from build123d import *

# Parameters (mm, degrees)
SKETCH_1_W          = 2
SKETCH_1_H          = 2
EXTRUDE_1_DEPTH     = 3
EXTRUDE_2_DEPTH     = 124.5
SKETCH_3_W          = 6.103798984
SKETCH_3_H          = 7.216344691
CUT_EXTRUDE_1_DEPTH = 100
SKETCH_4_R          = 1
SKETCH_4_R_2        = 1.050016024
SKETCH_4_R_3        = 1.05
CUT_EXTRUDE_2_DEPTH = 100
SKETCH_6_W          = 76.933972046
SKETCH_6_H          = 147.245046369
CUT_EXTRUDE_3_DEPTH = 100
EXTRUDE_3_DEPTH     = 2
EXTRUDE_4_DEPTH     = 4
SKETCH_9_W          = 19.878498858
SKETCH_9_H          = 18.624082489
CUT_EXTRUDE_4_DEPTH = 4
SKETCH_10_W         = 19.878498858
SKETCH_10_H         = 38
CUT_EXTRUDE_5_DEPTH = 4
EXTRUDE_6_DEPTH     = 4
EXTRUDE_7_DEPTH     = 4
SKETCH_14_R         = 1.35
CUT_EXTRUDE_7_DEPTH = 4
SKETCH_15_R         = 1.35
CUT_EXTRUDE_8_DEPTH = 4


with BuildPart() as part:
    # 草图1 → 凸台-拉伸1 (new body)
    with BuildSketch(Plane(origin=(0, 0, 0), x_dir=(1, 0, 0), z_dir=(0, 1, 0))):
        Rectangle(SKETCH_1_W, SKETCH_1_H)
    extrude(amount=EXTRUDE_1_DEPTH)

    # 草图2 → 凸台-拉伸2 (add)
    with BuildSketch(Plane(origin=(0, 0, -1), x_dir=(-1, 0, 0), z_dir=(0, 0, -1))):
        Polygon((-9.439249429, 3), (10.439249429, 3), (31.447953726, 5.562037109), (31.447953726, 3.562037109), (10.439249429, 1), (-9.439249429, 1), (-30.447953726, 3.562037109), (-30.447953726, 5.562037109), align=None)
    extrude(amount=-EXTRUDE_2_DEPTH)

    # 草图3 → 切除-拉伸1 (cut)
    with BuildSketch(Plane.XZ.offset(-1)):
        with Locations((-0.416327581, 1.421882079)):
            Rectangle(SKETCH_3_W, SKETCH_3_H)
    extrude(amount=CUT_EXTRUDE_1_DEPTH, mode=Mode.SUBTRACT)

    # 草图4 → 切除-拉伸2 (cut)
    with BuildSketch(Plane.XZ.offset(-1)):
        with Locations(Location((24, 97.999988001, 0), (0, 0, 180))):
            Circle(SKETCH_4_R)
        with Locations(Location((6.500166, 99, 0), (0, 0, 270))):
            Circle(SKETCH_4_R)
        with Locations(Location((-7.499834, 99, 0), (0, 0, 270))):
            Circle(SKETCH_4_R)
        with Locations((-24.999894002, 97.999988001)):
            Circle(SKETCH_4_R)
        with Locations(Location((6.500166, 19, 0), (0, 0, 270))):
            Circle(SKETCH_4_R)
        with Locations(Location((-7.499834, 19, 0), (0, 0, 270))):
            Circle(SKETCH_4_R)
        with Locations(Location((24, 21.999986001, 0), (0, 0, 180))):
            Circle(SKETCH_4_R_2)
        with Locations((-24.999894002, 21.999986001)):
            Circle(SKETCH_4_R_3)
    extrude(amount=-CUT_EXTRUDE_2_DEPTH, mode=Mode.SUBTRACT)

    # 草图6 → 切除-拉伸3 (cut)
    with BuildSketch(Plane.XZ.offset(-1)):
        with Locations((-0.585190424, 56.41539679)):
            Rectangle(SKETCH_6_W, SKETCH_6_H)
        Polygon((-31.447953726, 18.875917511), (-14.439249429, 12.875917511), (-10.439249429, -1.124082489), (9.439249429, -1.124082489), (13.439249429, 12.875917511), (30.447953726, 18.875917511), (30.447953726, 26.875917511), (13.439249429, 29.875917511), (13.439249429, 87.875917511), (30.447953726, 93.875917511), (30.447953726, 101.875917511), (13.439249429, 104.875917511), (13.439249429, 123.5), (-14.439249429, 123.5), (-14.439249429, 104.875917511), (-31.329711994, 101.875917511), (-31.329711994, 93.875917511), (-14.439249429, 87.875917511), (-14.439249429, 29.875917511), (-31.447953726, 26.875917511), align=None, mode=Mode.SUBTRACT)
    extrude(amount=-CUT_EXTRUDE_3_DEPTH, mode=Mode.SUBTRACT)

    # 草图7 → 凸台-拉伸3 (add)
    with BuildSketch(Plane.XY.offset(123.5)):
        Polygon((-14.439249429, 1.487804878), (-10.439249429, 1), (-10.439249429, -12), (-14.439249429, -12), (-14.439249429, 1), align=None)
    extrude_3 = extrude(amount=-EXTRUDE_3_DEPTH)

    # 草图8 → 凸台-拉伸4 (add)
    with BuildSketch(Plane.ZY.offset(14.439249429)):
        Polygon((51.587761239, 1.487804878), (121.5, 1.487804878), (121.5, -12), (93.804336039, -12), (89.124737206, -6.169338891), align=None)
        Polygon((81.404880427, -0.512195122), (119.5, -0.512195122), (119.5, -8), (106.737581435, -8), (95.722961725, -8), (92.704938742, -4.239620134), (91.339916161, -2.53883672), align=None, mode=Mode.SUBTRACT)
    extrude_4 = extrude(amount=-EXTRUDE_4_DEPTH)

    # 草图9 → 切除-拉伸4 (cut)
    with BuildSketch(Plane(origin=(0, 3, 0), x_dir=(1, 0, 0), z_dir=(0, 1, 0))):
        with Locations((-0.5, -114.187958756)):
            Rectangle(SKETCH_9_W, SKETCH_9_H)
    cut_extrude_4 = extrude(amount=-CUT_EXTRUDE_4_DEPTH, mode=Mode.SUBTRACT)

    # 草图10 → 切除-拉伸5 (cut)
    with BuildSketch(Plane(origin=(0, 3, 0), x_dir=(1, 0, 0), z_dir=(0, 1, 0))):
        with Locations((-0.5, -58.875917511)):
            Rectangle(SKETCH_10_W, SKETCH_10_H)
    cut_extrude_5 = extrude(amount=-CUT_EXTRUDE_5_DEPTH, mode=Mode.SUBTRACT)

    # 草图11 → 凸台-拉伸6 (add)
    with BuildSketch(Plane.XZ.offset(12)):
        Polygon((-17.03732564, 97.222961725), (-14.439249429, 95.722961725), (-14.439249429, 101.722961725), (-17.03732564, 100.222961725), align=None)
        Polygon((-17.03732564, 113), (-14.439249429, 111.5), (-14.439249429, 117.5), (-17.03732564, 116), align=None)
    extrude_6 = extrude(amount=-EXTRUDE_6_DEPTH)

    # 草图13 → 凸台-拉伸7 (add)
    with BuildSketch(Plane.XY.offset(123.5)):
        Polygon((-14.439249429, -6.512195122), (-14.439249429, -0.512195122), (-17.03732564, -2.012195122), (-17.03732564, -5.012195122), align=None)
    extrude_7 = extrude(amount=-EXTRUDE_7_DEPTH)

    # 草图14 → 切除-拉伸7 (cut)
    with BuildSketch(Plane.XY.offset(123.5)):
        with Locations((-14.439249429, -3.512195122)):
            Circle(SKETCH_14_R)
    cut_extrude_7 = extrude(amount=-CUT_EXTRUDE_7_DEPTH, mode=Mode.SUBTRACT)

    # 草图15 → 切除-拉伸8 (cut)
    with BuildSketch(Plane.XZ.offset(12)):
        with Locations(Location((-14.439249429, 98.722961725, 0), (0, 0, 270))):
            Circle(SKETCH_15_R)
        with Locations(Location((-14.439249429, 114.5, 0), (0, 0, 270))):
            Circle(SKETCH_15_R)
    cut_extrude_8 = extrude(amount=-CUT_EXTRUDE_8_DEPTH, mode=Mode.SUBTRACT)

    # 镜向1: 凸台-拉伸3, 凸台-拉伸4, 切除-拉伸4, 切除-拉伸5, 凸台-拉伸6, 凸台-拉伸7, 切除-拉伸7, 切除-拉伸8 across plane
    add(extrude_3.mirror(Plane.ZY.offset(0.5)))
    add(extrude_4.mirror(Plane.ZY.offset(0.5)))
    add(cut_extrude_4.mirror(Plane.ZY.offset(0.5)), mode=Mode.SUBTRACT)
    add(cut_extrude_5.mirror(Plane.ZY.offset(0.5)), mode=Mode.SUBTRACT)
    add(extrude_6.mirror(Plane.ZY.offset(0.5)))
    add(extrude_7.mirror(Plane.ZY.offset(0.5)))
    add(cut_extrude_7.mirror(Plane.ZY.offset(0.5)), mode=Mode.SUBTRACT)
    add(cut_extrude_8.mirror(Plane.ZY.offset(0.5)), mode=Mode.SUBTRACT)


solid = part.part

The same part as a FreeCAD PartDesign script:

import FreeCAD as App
import Part
import Sketcher

V = App.Vector
Q = App.Units.Quantity

doc = App.newDocument("Part")
body = doc.addObject("PartDesign::Body", "Body")

# Sketch on XZ plane
sketch1 = doc.addObject("Sketcher::SketchObject", "Sketch")
body.addObject(sketch1)
sketch1.AttachmentSupport = (doc.XZ_Plane, [""])
sketch1.MapMode = "FlatFace"
sketch1.addGeometry([
    Part.LineSegment(V(-1, -1, 0), V(-1, 1, 0)),
    Part.LineSegment(V(-1, 1, 0), V(1, 1, 0)),
    Part.LineSegment(V(1, 1, 0), V(1, -1, 0)),
    Part.LineSegment(V(1, -1, 0), V(-1, -1, 0)),
], False)
sketch1.addConstraint([
    Sketcher.Constraint("Coincident", 0, 2, 1, 1),
    Sketcher.Constraint("Coincident", 1, 2, 2, 1),
    Sketcher.Constraint("Coincident", 2, 2, 3, 1),
    Sketcher.Constraint("Coincident", 3, 2, 0, 1),
    Sketcher.Constraint("Vertical", 0),
    Sketcher.Constraint("Horizontal", 1),
    Sketcher.Constraint("Vertical", 2),
    Sketcher.Constraint("Horizontal", 3),
    Sketcher.Constraint("Symmetric", 0, 2, 2, 2, -1, 1),
    Sketcher.Constraint("Equal", 3, 0),
    Sketcher.Constraint("DistanceX", 1, 1, 1, 2, 2.0),
])
pad1 = doc.addObject("PartDesign::Pad", "Pad")
body.addObject(pad1)
pad1.Profile = sketch1
pad1.Length = 3
pad1.Reversed = True

# Sketch on XY plane
sketch2 = doc.addObject("Sketcher::SketchObject", "Sketch001")
body.addObject(sketch2)
sketch2.AttachmentSupport = (doc.XY_Plane, [""])
sketch2.MapMode = "FlatFace"
sketch2.AttachmentOffset = App.Placement(V(0, 0, -1), App.Rotation())
sketch2.addGeometry([
    Part.LineSegment(V(-10.4, 3, 0), V(9.4, 3, 0)),  # 0
    Part.LineSegment(V(9.4, 3, 0), V(30.4, 5.6, 0)),  # 1
    Part.LineSegment(V(30.4, 5.6, 0), V(30.4, 3.6, 0)),  # 2
    Part.LineSegment(V(30.4, 3.6, 0), V(9.4, 1, 0)),  # 3
    Part.LineSegment(V(9.4, 1, 0), V(-10.4, 1, 0)),  # 4
    Part.LineSegment(V(-10.4, 1, 0), V(-31.4, 3.6, 0)),  # 5
    Part.LineSegment(V(-31.4, 3.6, 0), V(-31.4, 5.6, 0)),  # 6
    Part.LineSegment(V(-31.4, 5.6, 0), V(-10.4, 3, 0)),  # 7
], False)
sketch2.addConstraint([
    Sketcher.Constraint("Coincident", 0, 2, 1, 1),
    Sketcher.Constraint("Coincident", 1, 2, 2, 1),
    Sketcher.Constraint("Coincident", 2, 2, 3, 1),
    Sketcher.Constraint("Coincident", 3, 2, 4, 1),
    Sketcher.Constraint("Coincident", 4, 2, 5, 1),
    Sketcher.Constraint("Coincident", 5, 2, 6, 1),
    Sketcher.Constraint("Coincident", 6, 2, 7, 1),
    Sketcher.Constraint("Coincident", 7, 2, 0, 1),
    Sketcher.Constraint("Horizontal", 0),
    Sketcher.Constraint("Vertical", 2),
    Sketcher.Constraint("Horizontal", 4),
    Sketcher.Constraint("Vertical", 6),
    Sketcher.Constraint("Parallel", 1, 3),
    Sketcher.Constraint("Parallel", 5, 7),
    Sketcher.Constraint("Horizontal", 2, 2, 5, 2),
    Sketcher.Constraint("Horizontal", 1, 2, 6, 2),
    Sketcher.Constraint("Vertical", 0, 2, 3, 2),
    Sketcher.Constraint("Equal", 3, 5),
    Sketcher.Constraint("DistanceY", 2, 2, 2, 1, 2.0),
    Sketcher.Constraint("DistanceY", -1, 1, 0, 2, 3.0),
    Sketcher.Constraint("DistanceX", 0, 1, 0, 2, 19.878499),
    Sketcher.Constraint("Distance", 1, 21.16435),
    Sketcher.Constraint("DistanceX", -1, 1, 0, 2, 9.439249),
    Sketcher.Constraint("DistanceX", -1, 1, 1, 2, 30.447954),
])
pad2 = doc.addObject("PartDesign::Pad", "Pad001")
body.addObject(pad2)
pad2.Profile = sketch2
pad2.Length = 124.5

# Sketch on XZ plane
sketch3 = doc.addObject("Sketcher::SketchObject", "Sketch002")
body.addObject(sketch3)
sketch3.AttachmentSupport = (doc.XZ_Plane, [""])
sketch3.MapMode = "FlatFace"
sketch3.AttachmentOffset = App.Placement(V(0, 0, -1), App.Rotation())
sketch3.addGeometry([
    Part.LineSegment(V(-3, 5, 0), V(-3, -2, 0)),
    Part.LineSegment(V(-3, -2, 0), V(3, -2, 0)),
    Part.LineSegment(V(3, -2, 0), V(3, 5, 0)),
    Part.LineSegment(V(3, 5, 0), V(-3, 5, 0)),
], False)
sketch3.addConstraint([
    Sketcher.Constraint("Coincident", 0, 2, 1, 1),
    Sketcher.Constraint("Coincident", 1, 2, 2, 1),
    Sketcher.Constraint("Coincident", 2, 2, 3, 1),
    Sketcher.Constraint("Coincident", 3, 2, 0, 1),
    Sketcher.Constraint("Vertical", 0),
    Sketcher.Constraint("Horizontal", 1),
    Sketcher.Constraint("Vertical", 2),
    Sketcher.Constraint("Horizontal", 3),
    Sketcher.Constraint("DistanceX", 1, 1, 1, 2, 6.103799),
    Sketcher.Constraint("DistanceY", 0, 2, 0, 1, 7.216345),
    Sketcher.Constraint("DistanceY", 0, 2, -1, 1, 2.18629),
    Sketcher.Constraint("DistanceX", -1, 1, 1, 2, 2.635572),
])
pocket1 = doc.addObject("PartDesign::Pocket", "Pocket")
body.addObject(pocket1)
pocket1.Profile = sketch3
pocket1.Length = 100
pocket1.Reversed = True

# Sketch on XZ plane
sketch4 = doc.addObject("Sketcher::SketchObject", "Sketch003")
body.addObject(sketch4)
sketch4.AttachmentSupport = (doc.XZ_Plane, [""])
sketch4.MapMode = "FlatFace"
sketch4.AttachmentOffset = App.Placement(V(0, 0, -1), App.Rotation())
sketch4.addGeometry([
    Part.Circle(V(24, 98, 0), V(0, 0, 1), 1),  # 0
    Part.Circle(V(6.5, 99, 0), V(0, 0, 1), 1),  # 1
    Part.Circle(V(-7.5, 99, 0), V(0, 0, 1), 1),  # 2
    Part.Circle(V(-25, 98, 0), V(0, 0, 1), 1),  # 3
    Part.Circle(V(6.5, 19, 0), V(0, 0, 1), 1),  # 4
    Part.Circle(V(-7.5, 19, 0), V(0, 0, 1), 1),  # 5
    Part.Circle(V(24, 22, 0), V(0, 0, 1), 1.1),  # 6
    Part.Circle(V(-25, 22, 0), V(0, 0, 1), 1.1),  # 7
], False)
sketch4.addConstraint([
    Sketcher.Constraint("Equal", 0, 1),
    Sketcher.Constraint("Equal", 1, 2),
    Sketcher.Constraint("Equal", 2, 3),
    Sketcher.Constraint("Equal", 3, 4),
    Sketcher.Constraint("Equal", 4, 5),
    Sketcher.Constraint("Horizontal", 1, 3, 2, 3),
    Sketcher.Constraint("Horizontal", 0, 3, 3, 3),
    Sketcher.Constraint("Horizontal", 4, 3, 5, 3),
    Sketcher.Constraint("Horizontal", 6, 3, 7, 3),
    Sketcher.Constraint("Vertical", 1, 3, 4, 3),
    Sketcher.Constraint("Vertical", 2, 3, 5, 3),
    Sketcher.Constraint("Vertical", 0, 3, 6, 3),
    Sketcher.Constraint("Vertical", 3, 3, 7, 3),
    Sketcher.Constraint("Diameter", 0, 2.0),
    Sketcher.Constraint("Diameter", 7, 2.1),
    Sketcher.Constraint("DistanceX", -1, 1, 0, 3, 24.0),
    Sketcher.Constraint("DistanceY", -1, 1, 1, 3, 99.0),
    Sketcher.Constraint("DistanceY", -1, 1, 4, 3, 19.0),
    Sketcher.Constraint("DistanceX", 2, 3, 1, 3, 14.0),
    Sketcher.Constraint("Diameter", 6, 2.100032),
    Sketcher.Constraint("DistanceY", -1, 1, 0, 3, 97.999988),
    Sketcher.Constraint("DistanceX", 3, 3, 2, 3, 17.50006),
    Sketcher.Constraint("DistanceX", -1, 1, 1, 3, 6.500166),
    Sketcher.Constraint("DistanceY", -1, 1, 6, 3, 21.999986),
])
pocket2 = doc.addObject("PartDesign::Pocket", "Pocket001")
body.addObject(pocket2)
pocket2.Profile = sketch4
pocket2.Length = 100

# Sketch on XZ plane
sketch5 = doc.addObject("Sketcher::SketchObject", "Sketch004")
body.addObject(sketch5)
sketch5.AttachmentSupport = (doc.XZ_Plane, [""])
sketch5.MapMode = "FlatFace"
sketch5.AttachmentOffset = App.Placement(V(0, 0, -1), App.Rotation())
sketch5.addGeometry([
    Part.LineSegment(V(-39, 130, 0), V(-39, -17, 0)),  # 0
    Part.LineSegment(V(-39, -17, 0), V(38, -17, 0)),  # 1
    Part.LineSegment(V(38, -17, 0), V(38, 130, 0)),  # 2
    Part.LineSegment(V(38, 130, 0), V(-39, 130, 0)),  # 3
    Part.LineSegment(V(-14, 13, 0), V(-31, 19, 0)),  # 4
    Part.LineSegment(V(-31, 19, 0), V(-31, 27, 0)),  # 5
    Part.LineSegment(V(-31, 27, 0), V(-14, 30, 0)),  # 6
    Part.LineSegment(V(-14, 30, 0), V(-14, 88, 0)),  # 7
    Part.LineSegment(V(-14, 88, 0), V(-31, 94, 0)),  # 8
    Part.LineSegment(V(-31, 94, 0), V(-31, 102, 0)),  # 9
    Part.LineSegment(V(-31, 102, 0), V(-14, 105, 0)),  # 10
    Part.LineSegment(V(-14, 105, 0), V(-14, 124, 0)),  # 11
    Part.LineSegment(V(-14, 124, 0), V(13, 124, 0)),  # 12
    Part.LineSegment(V(13, 124, 0), V(13, 105, 0)),  # 13
    Part.LineSegment(V(13, 105, 0), V(30, 102, 0)),  # 14
    Part.LineSegment(V(30, 102, 0), V(30, 94, 0)),  # 15
    Part.LineSegment(V(30, 94, 0), V(13, 88, 0)),  # 16
    Part.LineSegment(V(13, 88, 0), V(13, 30, 0)),  # 17
    Part.LineSegment(V(13, 30, 0), V(30, 27, 0)),  # 18
    Part.LineSegment(V(30, 27, 0), V(30, 19, 0)),  # 19
    Part.LineSegment(V(30, 19, 0), V(13, 13, 0)),  # 20
    Part.LineSegment(V(13, 13, 0), V(9, -1, 0)),  # 21
    Part.LineSegment(V(9, -1, 0), V(-10, -1, 0)),  # 22
    Part.LineSegment(V(-10, -1, 0), V(-14, 13, 0)),  # 23
], False)
sketch5.addConstraint([
    Sketcher.Constraint("Coincident", 0, 2, 1, 1),
    Sketcher.Constraint("Coincident", 1, 2, 2, 1),
    Sketcher.Constraint("Coincident", 2, 2, 3, 1),
    Sketcher.Constraint("Coincident", 3, 2, 0, 1),
    Sketcher.Constraint("Coincident", 4, 2, 5, 1),
    Sketcher.Constraint("Coincident", 5, 2, 6, 1),
    Sketcher.Constraint("Coincident", 6, 2, 7, 1),
    Sketcher.Constraint("Coincident", 7, 2, 8, 1),
    Sketcher.Constraint("Coincident", 8, 2, 9, 1),
    Sketcher.Constraint("Coincident", 9, 2, 10, 1),
    Sketcher.Constraint("Coincident", 10, 2, 11, 1),
    Sketcher.Constraint("Coincident", 11, 2, 12, 1),
    Sketcher.Constraint("Coincident", 12, 2, 13, 1),
    Sketcher.Constraint("Coincident", 13, 2, 14, 1),
    Sketcher.Constraint("Coincident", 14, 2, 15, 1),
    Sketcher.Constraint("Coincident", 15, 2, 16, 1),
    Sketcher.Constraint("Coincident", 16, 2, 17, 1),
    Sketcher.Constraint("Coincident", 17, 2, 18, 1),
    Sketcher.Constraint("Coincident", 18, 2, 19, 1),
    Sketcher.Constraint("Coincident", 19, 2, 20, 1),
    Sketcher.Constraint("Coincident", 20, 2, 21, 1),
    Sketcher.Constraint("Coincident", 21, 2, 22, 1),
    Sketcher.Constraint("Coincident", 22, 2, 23, 1),
    Sketcher.Constraint("Coincident", 23, 2, 4, 1),
    Sketcher.Constraint("Vertical", 0),
    Sketcher.Constraint("Horizontal", 1),
    Sketcher.Constraint("Vertical", 2),
    Sketcher.Constraint("Horizontal", 3),
    Sketcher.Constraint("Vertical", 5),
    Sketcher.Constraint("Vertical", 7),
    Sketcher.Constraint("Vertical", 9),
    Sketcher.Constraint("Vertical", 11),
    Sketcher.Constraint("Horizontal", 12),
    Sketcher.Constraint("Vertical", 13),
    Sketcher.Constraint("Vertical", 15),
    Sketcher.Constraint("Vertical", 17),
    Sketcher.Constraint("Vertical", 19),
    Sketcher.Constraint("Horizontal", 22),
    Sketcher.Constraint("Parallel", 14, 18),
    Sketcher.Constraint("Parallel", 16, 20),
    Sketcher.Constraint("Horizontal", 10, 2, 13, 2),
    Sketcher.Constraint("Horizontal", 9, 2, 14, 2),
    Sketcher.Constraint("Horizontal", 8, 2, 15, 2),
    Sketcher.Constraint("Horizontal", 7, 2, 16, 2),
    Sketcher.Constraint("Horizontal", 6, 2, 17, 2),
    Sketcher.Constraint("Horizontal", 5, 2, 18, 2),
    Sketcher.Constraint("Horizontal", 4, 2, 19, 2),
    Sketcher.Constraint("Horizontal", 20, 2, 23, 2),
    Sketcher.Constraint("Vertical", 7, 2, 10, 2),
    Sketcher.Constraint("Vertical", 13, 2, 16, 2),
    Sketcher.Constraint("Vertical", 15, 2, 18, 2),
    Sketcher.Constraint("Vertical", 17, 2, 20, 2),
    Sketcher.Constraint("Vertical", 11, 2, 23, 2),
    Sketcher.Constraint("Equal", 5, 9),
    Sketcher.Constraint("Equal", 6, 14),
    Sketcher.Constraint("Equal", 21, 23),
    Sketcher.Constraint("DistanceY", 5, 1, 5, 2, 8.0),
    Sketcher.Constraint("DistanceY", 7, 1, 7, 2, 58.0),
    Sketcher.Constraint("DistanceY", 5, 2, 6, 2, 3.0),
    Sketcher.Constraint("DistanceY", 7, 2, 8, 2, 6.0),
    Sketcher.Constraint("DistanceX", 21, 2, 20, 2, 4.0),
    Sketcher.Constraint("DistanceY", 21, 2, 20, 2, 14.0),
    Sketcher.Constraint("DistanceY", -1, 1, 11, 2, 123.5),
    Sketcher.Constraint("DistanceX", 12, 1, 12, 2, 27.878499),
    Sketcher.Constraint("Distance", 8, 17.924501),
    Sketcher.Constraint("Distance", 6, 17.271248),
    Sketcher.Constraint("DistanceX", 1, 1, 1, 2, 76.933972),
    Sketcher.Constraint("DistanceY", 0, 2, 0, 1, 147.245046),
    Sketcher.Constraint("DistanceY", 11, 1, 11, 2, 18.624082),
    Sketcher.Constraint("DistanceY", -1, 1, 2, 2, 130.03792),
    Sketcher.Constraint("DistanceX", 6, 2, -1, 1, 14.439249),
    Sketcher.Constraint("DistanceX", 4, 2, 1, 2, 69.329749),
])
pocket3 = doc.addObject("PartDesign::Pocket", "Pocket002")
body.addObject(pocket3)
pocket3.Profile = sketch5
pocket3.Length = 100

# Sketch on XY plane
sketch6 = doc.addObject("Sketcher::SketchObject", "Sketch005")
body.addObject(sketch6)
sketch6.AttachmentSupport = (doc.XY_Plane, [""])
sketch6.MapMode = "FlatFace"
sketch6.AttachmentOffset = App.Placement(V(0, 0, 123.5), App.Rotation())
sketch6.addGeometry([
    Part.LineSegment(V(-10.4, 1, 0), V(-14.4, 1.5, 0)),
    Part.LineSegment(V(-14.4, 1.5, 0), V(-14.4, -12, 0)),
    Part.LineSegment(V(-14.4, -12, 0), V(-10.4, -12, 0)),
    Part.LineSegment(V(-10.4, -12, 0), V(-10.4, 1, 0)),
], False)
sketch6.addConstraint([
    Sketcher.Constraint("Coincident", 0, 2, 1, 1),
    Sketcher.Constraint("Coincident", 1, 2, 2, 1),
    Sketcher.Constraint("Coincident", 2, 2, 3, 1),
    Sketcher.Constraint("Coincident", 3, 2, 0, 1),
    Sketcher.Constraint("Vertical", 1),
    Sketcher.Constraint("Horizontal", 2),
    Sketcher.Constraint("Vertical", 3),
    Sketcher.Constraint("DistanceX", 2, 1, 2, 2, 4.0),
    Sketcher.Constraint("DistanceY", 3, 1, 3, 2, 13.0),
    Sketcher.Constraint("DistanceY", 1, 2, -1, 1, 12.0),
    Sketcher.Constraint("DistanceY", 1, 2, 1, 1, 13.487805),
    Sketcher.Constraint("DistanceX", 0, 2, -1, 1, 14.439249),
])
pad3 = doc.addObject("PartDesign::Pad", "Pad002")
body.addObject(pad3)
pad3.Profile = sketch6
pad3.Length = 2
pad3.Reversed = True

# Sketch on YZ plane
sketch7 = doc.addObject("Sketcher::SketchObject", "Sketch006")
body.addObject(sketch7)
sketch7.AttachmentSupport = (doc.YZ_Plane, [""])
sketch7.MapMode = "FlatFace"
sketch7.AttachmentOffset = App.Placement(V(0, 0, -14.439249), App.Rotation())
sketch7.addGeometry([
    Part.LineSegment(V(1.5, 121.5, 0), V(1.5, 51.6, 0)),  # 0
    Part.LineSegment(V(1.5, 51.6, 0), V(-6.2, 89.1, 0)),  # 1
    Part.LineSegment(V(-6.2, 89.1, 0), V(-12, 93.8, 0)),  # 2
    Part.LineSegment(V(-12, 93.8, 0), V(-12, 121.5, 0)),  # 3
    Part.LineSegment(V(-12, 121.5, 0), V(1.5, 121.5, 0)),  # 4
    Part.LineSegment(V(-0.5, 81.4, 0), V(-0.5, 119.5, 0)),  # 5
    Part.LineSegment(V(-0.5, 119.5, 0), V(-8, 119.5, 0)),  # 6
    Part.LineSegment(V(-8, 119.5, 0), V(-8, 95.7, 0)),  # 7
    Part.LineSegment(V(-8, 95.7, 0), V(-4.2, 92.7, 0)),  # 8
    Part.LineSegment(V(-4.2, 92.7, 0), V(-2.5, 91.3, 0)),  # 9
    Part.LineSegment(V(-2.5, 91.3, 0), V(-0.5, 81.4, 0)),  # 10
], False)
sketch7.addConstraint([
    Sketcher.Constraint("Coincident", 0, 2, 1, 1),
    Sketcher.Constraint("Coincident", 1, 2, 2, 1),
    Sketcher.Constraint("Coincident", 2, 2, 3, 1),
    Sketcher.Constraint("Coincident", 3, 2, 4, 1),
    Sketcher.Constraint("Coincident", 4, 2, 0, 1),
    Sketcher.Constraint("Coincident", 5, 2, 6, 1),
    Sketcher.Constraint("Coincident", 6, 2, 7, 1),
    Sketcher.Constraint("Coincident", 7, 2, 8, 1),
    Sketcher.Constraint("Coincident", 8, 2, 9, 1),
    Sketcher.Constraint("Coincident", 9, 2, 10, 1),
    Sketcher.Constraint("Coincident", 10, 2, 5, 1),
    Sketcher.Constraint("Vertical", 0),
    Sketcher.Constraint("Vertical", 3),
    Sketcher.Constraint("Horizontal", 4),
    Sketcher.Constraint("Vertical", 5),
    Sketcher.Constraint("Horizontal", 6),
    Sketcher.Constraint("Vertical", 7),
    Sketcher.Constraint("Parallel", 2, 8),
    Sketcher.Constraint("Parallel", 8, 9),
    Sketcher.Constraint("Parallel", 1, 10),
    Sketcher.Constraint("DistanceX", 2, 2, -1, 1, 12.0),
    Sketcher.Constraint("DistanceX", 6, 2, -1, 1, 8.0),
    Sketcher.Constraint("DistanceX", 5, 2, 4, 2, 2.0),
    Sketcher.Constraint("DistanceY", 5, 2, 4, 2, 2.0),
    Sketcher.Constraint("DistanceY", -1, 1, 3, 2, 121.5),
    Sketcher.Constraint("Angle", 2, Q("141.250009 deg")),
    Sketcher.Constraint("DistanceY", 0, 2, 0, 1, 69.912239),
    Sketcher.Constraint("DistanceY", 5, 1, 5, 2, 38.09512),
    Sketcher.Constraint("DistanceY", 7, 2, 7, 1, 23.777038),
    Sketcher.Constraint("DistanceY", 1, 2, 2, 2, 4.679599),
    Sketcher.Constraint("DistanceY", 1, 2, 8, 2, 3.580202),
    Sketcher.Constraint("DistanceX", 4, 1, 4, 2, 13.487805),
    Sketcher.Constraint("DistanceY", 3, 1, 3, 2, 27.695664),
])
pad4 = doc.addObject("PartDesign::Pad", "Pad003")
body.addObject(pad4)
pad4.Profile = sketch7
pad4.Length = 4

# Sketch on XZ plane
sketch8 = doc.addObject("Sketcher::SketchObject", "Sketch007")
body.addObject(sketch8)
sketch8.AttachmentSupport = (doc.XZ_Plane, [""])
sketch8.MapMode = "FlatFace"
sketch8.AttachmentOffset = App.Placement(V(0, 0, -3), App.Rotation())
sketch8.addGeometry([
    Part.LineSegment(V(-10, 105, 0), V(-10, 124, 0)),
    Part.LineSegment(V(-10, 124, 0), V(9, 124, 0)),
    Part.LineSegment(V(9, 124, 0), V(9, 105, 0)),
    Part.LineSegment(V(9, 105, 0), V(-10, 105, 0)),
], False)
sketch8.addConstraint([
    Sketcher.Constraint("Coincident", 0, 2, 1, 1),
    Sketcher.Constraint("Coincident", 1, 2, 2, 1),
    Sketcher.Constraint("Coincident", 2, 2, 3, 1),
    Sketcher.Constraint("Coincident", 3, 2, 0, 1),
    Sketcher.Constraint("Vertical", 0),
    Sketcher.Constraint("Horizontal", 1),
    Sketcher.Constraint("Vertical", 2),
    Sketcher.Constraint("Horizontal", 3),
    Sketcher.Constraint("DistanceY", -1, 1, 0, 2, 123.5),
    Sketcher.Constraint("DistanceX", 1, 1, 1, 2, 19.878499),
    Sketcher.Constraint("DistanceY", 0, 1, 0, 2, 18.624082),
    Sketcher.Constraint("DistanceX", 0, 2, -1, 1, 10.439249),
])
pocket4 = doc.addObject("PartDesign::Pocket", "Pocket003")
body.addObject(pocket4)
pocket4.Profile = sketch8
pocket4.Length = 4
pocket4.Reversed = True

# Sketch on XZ plane
sketch9 = doc.addObject("Sketcher::SketchObject", "Sketch008")
body.addObject(sketch9)
sketch9.AttachmentSupport = (doc.XZ_Plane, [""])
sketch9.MapMode = "FlatFace"
sketch9.AttachmentOffset = App.Placement(V(0, 0, -3), App.Rotation())
sketch9.addGeometry([
    Part.LineSegment(V(-10, 40, 0), V(-10, 78, 0)),
    Part.LineSegment(V(-10, 78, 0), V(9, 78, 0)),
    Part.LineSegment(V(9, 78, 0), V(9, 40, 0)),
    Part.LineSegment(V(9, 40, 0), V(-10, 40, 0)),
], False)
sketch9.addConstraint([
    Sketcher.Constraint("Coincident", 0, 2, 1, 1),
    Sketcher.Constraint("Coincident", 1, 2, 2, 1),
    Sketcher.Constraint("Coincident", 2, 2, 3, 1),
    Sketcher.Constraint("Coincident", 3, 2, 0, 1),
    Sketcher.Constraint("Vertical", 0),
    Sketcher.Constraint("Horizontal", 1),
    Sketcher.Constraint("Vertical", 2),
    Sketcher.Constraint("Horizontal", 3),
    Sketcher.Constraint("DistanceY", 0, 1, 0, 2, 38.0),
    Sketcher.Constraint("DistanceX", 1, 1, 1, 2, 19.878499),
    Sketcher.Constraint("DistanceX", 0, 2, -1, 1, 10.439249),
    Sketcher.Constraint("DistanceY", -1, 1, 0, 2, 77.875918),
])
pocket5 = doc.addObject("PartDesign::Pocket", "Pocket004")
body.addObject(pocket5)
pocket5.Profile = sketch9
pocket5.Length = 4
pocket5.Reversed = True

# Sketch on XZ plane
sketch10 = doc.addObject("Sketcher::SketchObject", "Sketch009")
body.addObject(sketch10)
sketch10.AttachmentSupport = (doc.XZ_Plane, [""])
sketch10.MapMode = "FlatFace"
sketch10.AttachmentOffset = App.Placement(V(0, 0, 12), App.Rotation())
sketch10.addGeometry([
    Part.LineSegment(V(-17, 97.2, 0), V(-14.4, 95.7, 0)),  # 0
    Part.LineSegment(V(-14.4, 95.7, 0), V(-14.4, 101.7, 0)),  # 1
    Part.LineSegment(V(-14.4, 101.7, 0), V(-17, 100.2, 0)),  # 2
    Part.LineSegment(V(-17, 100.2, 0), V(-17, 97.2, 0)),  # 3
    Part.LineSegment(V(-17, 113, 0), V(-14.4, 111.5, 0)),  # 4
    Part.LineSegment(V(-14.4, 111.5, 0), V(-14.4, 117.5, 0)),  # 5
    Part.LineSegment(V(-14.4, 117.5, 0), V(-17, 116, 0)),  # 6
    Part.LineSegment(V(-17, 116, 0), V(-17, 113, 0)),  # 7
], False)
sketch10.addConstraint([
    Sketcher.Constraint("Coincident", 0, 2, 1, 1),
    Sketcher.Constraint("Coincident", 1, 2, 2, 1),
    Sketcher.Constraint("Coincident", 2, 2, 3, 1),
    Sketcher.Constraint("Coincident", 3, 2, 0, 1),
    Sketcher.Constraint("Coincident", 4, 2, 5, 1),
    Sketcher.Constraint("Coincident", 5, 2, 6, 1),
    Sketcher.Constraint("Coincident", 6, 2, 7, 1),
    Sketcher.Constraint("Coincident", 7, 2, 4, 1),
    Sketcher.Constraint("Vertical", 1),
    Sketcher.Constraint("Vertical", 3),
    Sketcher.Constraint("Vertical", 5),
    Sketcher.Constraint("Vertical", 7),
    Sketcher.Constraint("Parallel", 0, 4),
    Sketcher.Constraint("Parallel", 2, 6),
    Sketcher.Constraint("Vertical", 1, 2, 4, 2),
    Sketcher.Constraint("Vertical", 3, 2, 6, 2),
    Sketcher.Constraint("Equal", 1, 5),
    Sketcher.Constraint("Equal", 0, 2),
    Sketcher.Constraint("DistanceY", 1, 1, 1, 2, 6.0),
    Sketcher.Constraint("DistanceY", 3, 2, 3, 1, 3.0),
    Sketcher.Constraint("Angle", 0, Q("-30 deg")),
    Sketcher.Constraint("DistanceY", -1, 1, 6, 2, 116.0),
    Sketcher.Constraint("DistanceX", 0, 2, -1, 1, 14.439249),
    Sketcher.Constraint("DistanceY", -1, 1, 0, 2, 95.722962),
])
pad5 = doc.addObject("PartDesign::Pad", "Pad004")
body.addObject(pad5)
pad5.Profile = sketch10
pad5.Length = 4
pad5.Reversed = True

# Sketch on XY plane
sketch11 = doc.addObject("Sketcher::SketchObject", "Sketch010")
body.addObject(sketch11)
sketch11.AttachmentSupport = (doc.XY_Plane, [""])
sketch11.MapMode = "FlatFace"
sketch11.AttachmentOffset = App.Placement(V(0, 0, 123.5), App.Rotation())
sketch11.addGeometry([
    Part.LineSegment(V(-14.4, -6.5, 0), V(-14.4, -0.5, 0)),
    Part.LineSegment(V(-14.4, -0.5, 0), V(-17, -2, 0)),
    Part.LineSegment(V(-17, -2, 0), V(-17, -5, 0)),
    Part.LineSegment(V(-17, -5, 0), V(-14.4, -6.5, 0)),
], False)
sketch11.addConstraint([
    Sketcher.Constraint("Coincident", 0, 2, 1, 1),
    Sketcher.Constraint("Coincident", 1, 2, 2, 1),
    Sketcher.Constraint("Coincident", 2, 2, 3, 1),
    Sketcher.Constraint("Coincident", 3, 2, 0, 1),
    Sketcher.Constraint("Vertical", 0),
    Sketcher.Constraint("Vertical", 2),
    Sketcher.Constraint("Equal", 1, 3),
    Sketcher.Constraint("DistanceY", 0, 1, 0, 2, 6.0),
    Sketcher.Constraint("DistanceY", 2, 2, 2, 1, 3.0),
    Sketcher.Constraint("Angle", 1, Q("-150 deg")),
    Sketcher.Constraint("DistanceX", 0, 2, -1, 1, 14.439249),
    Sketcher.Constraint("DistanceY", 0, 2, -1, 1, 0.512195),
])
pad6 = doc.addObject("PartDesign::Pad", "Pad005")
body.addObject(pad6)
pad6.Profile = sketch11
pad6.Length = 4
pad6.Reversed = True

# Sketch on XY plane
sketch12 = doc.addObject("Sketcher::SketchObject", "Sketch011")
body.addObject(sketch12)
sketch12.AttachmentSupport = (doc.XY_Plane, [""])
sketch12.MapMode = "FlatFace"
sketch12.AttachmentOffset = App.Placement(V(0, 0, 123.5), App.Rotation())
sketch12.addGeometry(Part.Circle(V(-14.4, -3.5, 0), V(0, 0, 1), 1.4), False)
sketch12.addConstraint([
    Sketcher.Constraint("Diameter", 0, 2.7),
    Sketcher.Constraint("DistanceX", 0, 3, -1, 1, 14.439249),
    Sketcher.Constraint("DistanceY", 0, 3, -1, 1, 3.512195),
])
pocket6 = doc.addObject("PartDesign::Pocket", "Pocket005")
body.addObject(pocket6)
pocket6.Profile = sketch12
pocket6.Length = 4

# Sketch on XZ plane
sketch13 = doc.addObject("Sketcher::SketchObject", "Sketch012")
body.addObject(sketch13)
sketch13.AttachmentSupport = (doc.XZ_Plane, [""])
sketch13.MapMode = "FlatFace"
sketch13.AttachmentOffset = App.Placement(V(0, 0, 12), App.Rotation())
sketch13.addGeometry([
    Part.Circle(V(-14.4, 98.7, 0), V(0, 0, 1), 1.4),
    Part.Circle(V(-14.4, 114.5, 0), V(0, 0, 1), 1.4),
], False)
sketch13.addConstraint([
    Sketcher.Constraint("Equal", 0, 1),
    Sketcher.Constraint("Vertical", 0, 3, 1, 3),
    Sketcher.Constraint("Diameter", 0, 2.7),
    Sketcher.Constraint("DistanceY", -1, 1, 1, 3, 114.5),
    Sketcher.Constraint("DistanceX", 0, 3, -1, 1, 14.439249),
    Sketcher.Constraint("DistanceY", -1, 1, 0, 3, 98.722962),
])
pocket7 = doc.addObject("PartDesign::Pocket", "Pocket006")
body.addObject(pocket7)
pocket7.Profile = sketch13
pocket7.Length = 4
doc.recompute()

datumplane = doc.addObject("PartDesign::Plane", "DatumPlane")
body.addObject(datumplane)
datumplane.AttachmentSupport = (doc.YZ_Plane, [""])
datumplane.MapMode = "FlatFace"
datumplane.AttachmentOffset = App.Placement(V(0, 0, -0.5), App.Rotation())
mirrored = doc.addObject("PartDesign::Mirrored", "Mirrored")
body.addObject(mirrored)
mirrored.Originals = [pad3, pad4, pocket4, pocket5, pad5, pad6, pocket6, pocket7]
mirrored.MirrorPlane = (datumplane, [""])
body.Tip = mirrored

doc.recompute()
